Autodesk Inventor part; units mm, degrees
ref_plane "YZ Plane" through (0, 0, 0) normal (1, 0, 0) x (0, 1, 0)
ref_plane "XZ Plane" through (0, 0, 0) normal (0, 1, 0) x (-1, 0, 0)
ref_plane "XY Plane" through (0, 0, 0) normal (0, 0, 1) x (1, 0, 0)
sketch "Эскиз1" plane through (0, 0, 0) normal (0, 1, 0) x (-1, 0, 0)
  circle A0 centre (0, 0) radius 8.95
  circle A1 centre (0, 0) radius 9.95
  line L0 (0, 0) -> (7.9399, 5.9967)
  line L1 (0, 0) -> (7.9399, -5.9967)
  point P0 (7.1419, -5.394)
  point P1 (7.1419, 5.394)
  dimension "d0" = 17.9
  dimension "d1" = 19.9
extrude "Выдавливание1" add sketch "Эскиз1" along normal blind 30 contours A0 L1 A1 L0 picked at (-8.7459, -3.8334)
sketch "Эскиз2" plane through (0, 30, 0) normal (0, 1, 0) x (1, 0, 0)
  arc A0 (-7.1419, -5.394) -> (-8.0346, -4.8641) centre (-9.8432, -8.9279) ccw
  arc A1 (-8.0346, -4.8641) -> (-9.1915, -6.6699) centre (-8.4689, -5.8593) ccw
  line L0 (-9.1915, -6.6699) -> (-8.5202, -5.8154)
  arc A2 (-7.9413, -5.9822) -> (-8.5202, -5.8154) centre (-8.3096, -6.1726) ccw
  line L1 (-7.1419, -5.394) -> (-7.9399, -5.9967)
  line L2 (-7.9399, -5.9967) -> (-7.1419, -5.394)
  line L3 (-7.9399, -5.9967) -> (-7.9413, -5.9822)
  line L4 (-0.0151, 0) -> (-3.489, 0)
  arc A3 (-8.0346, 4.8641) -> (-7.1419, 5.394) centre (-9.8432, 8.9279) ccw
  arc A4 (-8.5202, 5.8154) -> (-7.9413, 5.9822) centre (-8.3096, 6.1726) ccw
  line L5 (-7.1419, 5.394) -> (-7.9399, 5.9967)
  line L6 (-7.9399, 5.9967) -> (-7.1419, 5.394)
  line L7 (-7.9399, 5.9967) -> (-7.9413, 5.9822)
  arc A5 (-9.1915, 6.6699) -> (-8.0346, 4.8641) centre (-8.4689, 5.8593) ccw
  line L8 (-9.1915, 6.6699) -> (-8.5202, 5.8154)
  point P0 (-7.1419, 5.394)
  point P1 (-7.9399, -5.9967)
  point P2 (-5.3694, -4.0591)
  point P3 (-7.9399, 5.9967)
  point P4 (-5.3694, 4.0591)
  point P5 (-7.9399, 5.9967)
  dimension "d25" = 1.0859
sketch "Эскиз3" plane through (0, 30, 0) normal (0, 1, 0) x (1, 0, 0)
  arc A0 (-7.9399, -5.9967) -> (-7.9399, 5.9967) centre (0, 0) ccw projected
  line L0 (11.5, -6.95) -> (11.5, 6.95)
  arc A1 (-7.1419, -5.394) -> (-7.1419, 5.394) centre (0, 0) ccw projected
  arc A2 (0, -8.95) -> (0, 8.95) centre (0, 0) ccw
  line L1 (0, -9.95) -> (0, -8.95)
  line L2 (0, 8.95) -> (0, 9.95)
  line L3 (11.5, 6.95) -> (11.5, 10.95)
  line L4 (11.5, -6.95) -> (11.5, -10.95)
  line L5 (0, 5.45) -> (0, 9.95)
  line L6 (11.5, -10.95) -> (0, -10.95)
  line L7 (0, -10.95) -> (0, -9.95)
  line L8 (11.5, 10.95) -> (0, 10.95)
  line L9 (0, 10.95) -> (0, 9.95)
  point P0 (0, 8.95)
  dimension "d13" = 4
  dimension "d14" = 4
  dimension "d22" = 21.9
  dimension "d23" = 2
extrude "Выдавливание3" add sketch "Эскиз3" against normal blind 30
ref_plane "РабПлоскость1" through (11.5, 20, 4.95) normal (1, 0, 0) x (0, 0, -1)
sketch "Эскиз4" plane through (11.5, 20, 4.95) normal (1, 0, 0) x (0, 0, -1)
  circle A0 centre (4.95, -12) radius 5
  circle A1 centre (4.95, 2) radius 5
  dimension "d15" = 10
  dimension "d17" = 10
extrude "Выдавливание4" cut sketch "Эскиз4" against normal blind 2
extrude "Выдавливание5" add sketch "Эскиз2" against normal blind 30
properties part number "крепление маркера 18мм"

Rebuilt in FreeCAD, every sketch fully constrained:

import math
import FreeCAD as App
import Part
import Sketcher
Q = App.Units.Quantity

doc = App.newDocument("Part")
body = doc.addObject("PartDesign::Body", "Body")

# Sketch on XZ plane
sketch1 = body.newObject("Sketcher::SketchObject", "Sketch")
sketch1.AttachmentSupport = (doc.getObject("XZ_Plane"), [""])
sketch1.MapMode = "FlatFace"
sketch1.addGeometry(Part.ArcOfCircle(Part.Circle(App.Vector(0, 0, 0), App.Vector(0, 0, 1), 8.9), math.radians(-143), math.radians(143)), False)
sketch1.addGeometry(Part.LineSegment(App.Vector(-7.1, 5.4, 0), App.Vector(-7.9, 6, 0)), False)
sketch1.addGeometry(Part.ArcOfCircle(Part.Circle(App.Vector(0, 0, 0), App.Vector(0, 0, 1), 9.9), math.radians(-143), math.radians(143)), False)
sketch1.addGeometry(Part.LineSegment(App.Vector(-7.9, -6, 0), App.Vector(-7.1, -5.4, 0)), False)
sketch1.addConstraint(Sketcher.Constraint("Coincident", 0, 2, 1, 1))
sketch1.addConstraint(Sketcher.Constraint("Coincident", 1, 2, 2, 2))
sketch1.addConstraint(Sketcher.Constraint("Coincident", 2, 1, 3, 1))
sketch1.addConstraint(Sketcher.Constraint("Coincident", 3, 2, 0, 1))
sketch1.addConstraint(Sketcher.Constraint("Coincident", 0, 3, -1, 1))
sketch1.addConstraint(Sketcher.Constraint("Coincident", 2, 3, -1, 1))
sketch1.addConstraint(Sketcher.Constraint("Vertical", 1, 2, 2, 1))
sketch1.addConstraint(Sketcher.Constraint("Vertical", 0, 2, 3, 2))
sketch1.addConstraint(Sketcher.Constraint("Radius", 0, Q("8.95 mm")))
sketch1.addConstraint(Sketcher.Constraint("Radius", 2, Q("9.95 mm")))
sketch1.addConstraint(Sketcher.Constraint("DistanceX", 1, 2, -1, 1, Q("7.94 mm")))
sketch1.addConstraint(Sketcher.Constraint("DistanceX", 0, 2, -1, 1, Q("7.142 mm")))
pad1 = body.newObject("PartDesign::Pad", "Pad")
pad1.Profile = sketch1
pad1.Length = 30
pad1.Reversed = True

# Sketch on XZ plane
sketch2 = body.newObject("Sketcher::SketchObject", "Sketch001")
sketch2.AttachmentSupport = (doc.getObject("XZ_Plane"), [""])
sketch2.MapMode = "FlatFace"
sketch2.AttachmentOffset = App.Placement(App.Vector(0, 0, -30), App.Rotation())
sketch2.addGeometry(Part.LineSegment(App.Vector(0, 8.9, 0), App.Vector(0, 10.9, 0)), False)
sketch2.addGeometry(Part.LineSegment(App.Vector(0, 10.9, 0), App.Vector(11.5, 10.9, 0)), False)
sketch2.addGeometry(Part.LineSegment(App.Vector(11.5, 10.9, 0), App.Vector(11.5, -10.9, 0)), False)
sketch2.addGeometry(Part.LineSegment(App.Vector(11.5, -10.9, 0), App.Vector(0, -10.9, 0)), False)
sketch2.addGeometry(Part.LineSegment(App.Vector(0, -10.9, 0), App.Vector(0, -8.9, 0)), False)
sketch2.addGeometry(Part.ArcOfCircle(Part.Circle(App.Vector(0, 0, 0), App.Vector(0, 0, 1), 8.9), math.radians(-90), math.radians(90)), False)
sketch2.addConstraint(Sketcher.Constraint("Coincident", 0, 2, 1, 1))
sketch2.addConstraint(Sketcher.Constraint("Coincident", 1, 2, 2, 1))
sketch2.addConstraint(Sketcher.Constraint("Coincident", 2, 2, 3, 1))
sketch2.addConstraint(Sketcher.Constraint("Coincident", 3, 2, 4, 1))
sketch2.addConstraint(Sketcher.Constraint("Coincident", 4, 2, 5, 1))
sketch2.addConstraint(Sketcher.Constraint("Coincident", 5, 2, 0, 1))
sketch2.addConstraint(Sketcher.Constraint("Vertical", 0))
sketch2.addConstraint(Sketcher.Constraint("Horizontal", 1))
sketch2.addConstraint(Sketcher.Constraint("Vertical", 2))
sketch2.addConstraint(Sketcher.Constraint("Horizontal", 3))
sketch2.addConstraint(Sketcher.Constraint("Vertical", 4))
sketch2.addConstraint(Sketcher.Constraint("Coincident", 5, 3, -1, 1))
sketch2.addConstraint(Sketcher.Constraint("Symmetric", 0, 2, 3, 2, -1, 1))
sketch2.addConstraint(Sketcher.Constraint("PointOnObject", 0, 2, -2))
sketch2.addConstraint(Sketcher.Constraint("DistanceY", 0, 1, 0, 2, Q("2 mm")))
sketch2.addConstraint(Sketcher.Constraint("DistanceY", 2, 2, 2, 1, Q("21.9 mm")))
sketch2.addConstraint(Sketcher.Constraint("DistanceX", 1, 1, 1, 2, Q("11.5 mm")))
pad2 = body.newObject("PartDesign::Pad", "Pad001")
pad2.Profile = sketch2
pad2.Length = 30

# Sketch on YZ plane
sketch3 = body.newObject("Sketcher::SketchObject", "Sketch002")
sketch3.AttachmentSupport = (doc.getObject("YZ_Plane"), [""])
sketch3.MapMode = "FlatFace"
sketch3.AttachmentOffset = App.Placement(App.Vector(0, 0, 11.5), App.Rotation())
sketch3.addGeometry(Part.Circle(App.Vector(8, 0, 0), App.Vector(0, 0, 1), 5), False)
sketch3.addGeometry(Part.Circle(App.Vector(22, 0, 0), App.Vector(0, 0, 1), 5), False)
sketch3.addConstraint(Sketcher.Constraint("Equal", 0, 1))
sketch3.addConstraint(Sketcher.Constraint("PointOnObject", 0, 3, -1))
sketch3.addConstraint(Sketcher.Constraint("PointOnObject", 1, 3, -1))
sketch3.addConstraint(Sketcher.Constraint("Diameter", 0, Q("10 mm")))
sketch3.addConstraint(Sketcher.Constraint("DistanceX", -1, 1, 0, 3, Q("8 mm")))
sketch3.addConstraint(Sketcher.Constraint("DistanceX", -1, 1, 1, 3, Q("22 mm")))
pocket1 = body.newObject("PartDesign::Pocket", "Pocket")
pocket1.Profile = sketch3
pocket1.Length = 2

# Sketch on XZ plane
sketch4 = body.newObject("Sketcher::SketchObject", "Sketch003")
sketch4.AttachmentSupport = (doc.getObject("XZ_Plane"), [""])
sketch4.MapMode = "FlatFace"
sketch4.AttachmentOffset = App.Placement(App.Vector(0, 0, -30), App.Rotation())
sketch4.addGeometry(Part.LineSegment(App.Vector(-7.94, 5.997, 0), App.Vector(-7.142, 5.394, 0)), False)
sketch4.addGeometry(Part.ArcOfCircle(Part.Circle(App.Vector(-9.843, 8.928, 0), App.Vector(0, 0, 1), 4.448), math.radians(-66.01), math.radians(-52.61)), False)
sketch4.addGeometry(Part.ArcOfCircle(Part.Circle(App.Vector(-8.469, 5.859, 0), App.Vector(0, 0, 1), 1.086), math.radians(132), math.radians(294)), False)
sketch4.addGeometry(Part.LineSegment(App.Vector(-9.191, 6.67, 0), App.Vector(-8.52, 5.815, 0)), False)
sketch4.addGeometry(Part.ArcOfCircle(Part.Circle(App.Vector(-8.31, 6.173, 0), App.Vector(0, 0, 1), 0.415), math.radians(-121), math.radians(-27)), False)
sketch4.addGeometry(Part.LineSegment(App.Vector(-7.941, 5.982, 0), App.Vector(-7.94, 5.997, 0)), False)
sketch4.addGeometry(Part.ArcOfCircle(Part.Circle(App.Vector(-8.469, -5.859, 0), App.Vector(0, 0, 1), 1.086), math.radians(66), math.radians(228)), False)
sketch4.addGeometry(Part.ArcOfCircle(Part.Circle(App.Vector(-9.843, -8.928, 0), App.Vector(0, 0, 1), 4.448), math.radians(52.61), math.radians(66.01)), False)
sketch4.addGeometry(Part.LineSegment(App.Vector(-7.142, -5.394, 0), App.Vector(-7.94, -5.997, 0)), False)
sketch4.addGeometry(Part.LineSegment(App.Vector(-7.94, -5.997, 0), App.Vector(-7.941, -5.982, 0)), False)
sketch4.addGeometry(Part.ArcOfCircle(Part.Circle(App.Vector(-8.31, -6.173, 0), App.Vector(0, 0, 1), 0.415), math.radians(27), math.radians(121)), False)
sketch4.addGeometry(Part.LineSegment(App.Vector(-8.52, -5.815, 0), App.Vector(-9.191, -6.67, 0)), False)
sketch4.addConstraint(Sketcher.Constraint("Coincident", 0, 2, 1, 2))
sketch4.addConstraint(Sketcher.Constraint("Coincident", 1, 1, 2, 2))
sketch4.addConstraint(Sketcher.Constraint("Coincident", 2, 1, 3, 1))
sketch4.addConstraint(Sketcher.Constraint("Coincident", 3, 2, 4, 1))
sketch4.addConstraint(Sketcher.Constraint("Coincident", 4, 2, 5, 1))
sketch4.addConstraint(Sketcher.Constraint("Coincident", 5, 2, 0, 1))
sketch4.addConstraint(Sketcher.Constraint("Coincident", 6, 1, 7, 2))
sketch4.addConstraint(Sketcher.Constraint("Coincident", 7, 1, 8, 1))
sketch4.addConstraint(Sketcher.Constraint("Coincident", 8, 2, 9, 1))
sketch4.addConstraint(Sketcher.Constraint("Coincident", 9, 2, 10, 1))
sketch4.addConstraint(Sketcher.Constraint("Coincident", 10, 2, 11, 1))
sketch4.addConstraint(Sketcher.Constraint("Coincident", 11, 2, 6, 2))
sketch4.addConstraint(Sketcher.Constraint("Equal", 2, 6))
sketch4.addConstraint(Sketcher.Constraint("Equal", 1, 7))
sketch4.addConstraint(Sketcher.Constraint("Equal", 4, 10))
sketch4.addConstraint(Sketcher.Constraint("Symmetric", 2, 3, 6, 3, -1))
sketch4.addConstraint(Sketcher.Constraint("Symmetric", 1, 3, 7, 3, -1))
sketch4.addConstraint(Sketcher.Constraint("Symmetric", 4, 3, 10, 3, -1))
sketch4.addConstraint(Sketcher.Constraint("Symmetric", 5, 2, 8, 2, -1))
sketch4.addConstraint(Sketcher.Constraint("Vertical", 0, 2, 7, 1))
sketch4.addConstraint(Sketcher.Constraint("Vertical", 4, 2, 9, 2))
sketch4.addConstraint(Sketcher.Constraint("Vertical", 3, 2, 10, 2))
sketch4.addConstraint(Sketcher.Constraint("Vertical", 2, 1, 11, 2))
sketch4.addConstraint(Sketcher.Constraint("Radius", 6, Q("1.086 mm")))
sketch4.addConstraint(Sketcher.Constraint("Distance", 0, Q("1 mm")))
sketch4.addConstraint(Sketcher.Constraint("Radius", 1, Q("4.448 mm")))
sketch4.addConstraint(Sketcher.Constraint("Radius", 4, Q("0.4146 mm")))
sketch4.addConstraint(Sketcher.Constraint("DistanceX", 5, 2, -1, 1, Q("7.94 mm")))
sketch4.addConstraint(Sketcher.Constraint("DistanceY", 11, 2, -1, 1, Q("6.67 mm")))
sketch4.addConstraint(Sketcher.Constraint("DistanceY", 1, 1, 0, 2, Q("0.53 mm")))
sketch4.addConstraint(Sketcher.Constraint("DistanceY", -1, 1, 1, 3, Q("8.928 mm")))
sketch4.addConstraint(Sketcher.Constraint("DistanceX", 2, 3, -1, 1, Q("8.469 mm")))
sketch4.addConstraint(Sketcher.Constraint("DistanceX", 0, 2, -1, 1, Q("7.142 mm")))
sketch4.addConstraint(Sketcher.Constraint("DistanceY", -1, 1, 0, 2, Q("5.394 mm")))
sketch4.addConstraint(Sketcher.Constraint("DistanceY", 6, 3, 4, 3, Q("12.032 mm")))
sketch4.addConstraint(Sketcher.Constraint("DistanceX", 4, 3, 1, 1, Q("0.275 mm")))
sketch4.addConstraint(Sketcher.Constraint("DistanceY", 3, 2, 2, 3, Q("0.044 mm")))
sketch4.addConstraint(Sketcher.Constraint("DistanceY", 2, 3, 4, 2, Q("0.123 mm")))
pad3 = body.newObject("PartDesign::Pad", "Pad002")
pad3.Profile = sketch4
pad3.Length = 30

doc.recompute()
